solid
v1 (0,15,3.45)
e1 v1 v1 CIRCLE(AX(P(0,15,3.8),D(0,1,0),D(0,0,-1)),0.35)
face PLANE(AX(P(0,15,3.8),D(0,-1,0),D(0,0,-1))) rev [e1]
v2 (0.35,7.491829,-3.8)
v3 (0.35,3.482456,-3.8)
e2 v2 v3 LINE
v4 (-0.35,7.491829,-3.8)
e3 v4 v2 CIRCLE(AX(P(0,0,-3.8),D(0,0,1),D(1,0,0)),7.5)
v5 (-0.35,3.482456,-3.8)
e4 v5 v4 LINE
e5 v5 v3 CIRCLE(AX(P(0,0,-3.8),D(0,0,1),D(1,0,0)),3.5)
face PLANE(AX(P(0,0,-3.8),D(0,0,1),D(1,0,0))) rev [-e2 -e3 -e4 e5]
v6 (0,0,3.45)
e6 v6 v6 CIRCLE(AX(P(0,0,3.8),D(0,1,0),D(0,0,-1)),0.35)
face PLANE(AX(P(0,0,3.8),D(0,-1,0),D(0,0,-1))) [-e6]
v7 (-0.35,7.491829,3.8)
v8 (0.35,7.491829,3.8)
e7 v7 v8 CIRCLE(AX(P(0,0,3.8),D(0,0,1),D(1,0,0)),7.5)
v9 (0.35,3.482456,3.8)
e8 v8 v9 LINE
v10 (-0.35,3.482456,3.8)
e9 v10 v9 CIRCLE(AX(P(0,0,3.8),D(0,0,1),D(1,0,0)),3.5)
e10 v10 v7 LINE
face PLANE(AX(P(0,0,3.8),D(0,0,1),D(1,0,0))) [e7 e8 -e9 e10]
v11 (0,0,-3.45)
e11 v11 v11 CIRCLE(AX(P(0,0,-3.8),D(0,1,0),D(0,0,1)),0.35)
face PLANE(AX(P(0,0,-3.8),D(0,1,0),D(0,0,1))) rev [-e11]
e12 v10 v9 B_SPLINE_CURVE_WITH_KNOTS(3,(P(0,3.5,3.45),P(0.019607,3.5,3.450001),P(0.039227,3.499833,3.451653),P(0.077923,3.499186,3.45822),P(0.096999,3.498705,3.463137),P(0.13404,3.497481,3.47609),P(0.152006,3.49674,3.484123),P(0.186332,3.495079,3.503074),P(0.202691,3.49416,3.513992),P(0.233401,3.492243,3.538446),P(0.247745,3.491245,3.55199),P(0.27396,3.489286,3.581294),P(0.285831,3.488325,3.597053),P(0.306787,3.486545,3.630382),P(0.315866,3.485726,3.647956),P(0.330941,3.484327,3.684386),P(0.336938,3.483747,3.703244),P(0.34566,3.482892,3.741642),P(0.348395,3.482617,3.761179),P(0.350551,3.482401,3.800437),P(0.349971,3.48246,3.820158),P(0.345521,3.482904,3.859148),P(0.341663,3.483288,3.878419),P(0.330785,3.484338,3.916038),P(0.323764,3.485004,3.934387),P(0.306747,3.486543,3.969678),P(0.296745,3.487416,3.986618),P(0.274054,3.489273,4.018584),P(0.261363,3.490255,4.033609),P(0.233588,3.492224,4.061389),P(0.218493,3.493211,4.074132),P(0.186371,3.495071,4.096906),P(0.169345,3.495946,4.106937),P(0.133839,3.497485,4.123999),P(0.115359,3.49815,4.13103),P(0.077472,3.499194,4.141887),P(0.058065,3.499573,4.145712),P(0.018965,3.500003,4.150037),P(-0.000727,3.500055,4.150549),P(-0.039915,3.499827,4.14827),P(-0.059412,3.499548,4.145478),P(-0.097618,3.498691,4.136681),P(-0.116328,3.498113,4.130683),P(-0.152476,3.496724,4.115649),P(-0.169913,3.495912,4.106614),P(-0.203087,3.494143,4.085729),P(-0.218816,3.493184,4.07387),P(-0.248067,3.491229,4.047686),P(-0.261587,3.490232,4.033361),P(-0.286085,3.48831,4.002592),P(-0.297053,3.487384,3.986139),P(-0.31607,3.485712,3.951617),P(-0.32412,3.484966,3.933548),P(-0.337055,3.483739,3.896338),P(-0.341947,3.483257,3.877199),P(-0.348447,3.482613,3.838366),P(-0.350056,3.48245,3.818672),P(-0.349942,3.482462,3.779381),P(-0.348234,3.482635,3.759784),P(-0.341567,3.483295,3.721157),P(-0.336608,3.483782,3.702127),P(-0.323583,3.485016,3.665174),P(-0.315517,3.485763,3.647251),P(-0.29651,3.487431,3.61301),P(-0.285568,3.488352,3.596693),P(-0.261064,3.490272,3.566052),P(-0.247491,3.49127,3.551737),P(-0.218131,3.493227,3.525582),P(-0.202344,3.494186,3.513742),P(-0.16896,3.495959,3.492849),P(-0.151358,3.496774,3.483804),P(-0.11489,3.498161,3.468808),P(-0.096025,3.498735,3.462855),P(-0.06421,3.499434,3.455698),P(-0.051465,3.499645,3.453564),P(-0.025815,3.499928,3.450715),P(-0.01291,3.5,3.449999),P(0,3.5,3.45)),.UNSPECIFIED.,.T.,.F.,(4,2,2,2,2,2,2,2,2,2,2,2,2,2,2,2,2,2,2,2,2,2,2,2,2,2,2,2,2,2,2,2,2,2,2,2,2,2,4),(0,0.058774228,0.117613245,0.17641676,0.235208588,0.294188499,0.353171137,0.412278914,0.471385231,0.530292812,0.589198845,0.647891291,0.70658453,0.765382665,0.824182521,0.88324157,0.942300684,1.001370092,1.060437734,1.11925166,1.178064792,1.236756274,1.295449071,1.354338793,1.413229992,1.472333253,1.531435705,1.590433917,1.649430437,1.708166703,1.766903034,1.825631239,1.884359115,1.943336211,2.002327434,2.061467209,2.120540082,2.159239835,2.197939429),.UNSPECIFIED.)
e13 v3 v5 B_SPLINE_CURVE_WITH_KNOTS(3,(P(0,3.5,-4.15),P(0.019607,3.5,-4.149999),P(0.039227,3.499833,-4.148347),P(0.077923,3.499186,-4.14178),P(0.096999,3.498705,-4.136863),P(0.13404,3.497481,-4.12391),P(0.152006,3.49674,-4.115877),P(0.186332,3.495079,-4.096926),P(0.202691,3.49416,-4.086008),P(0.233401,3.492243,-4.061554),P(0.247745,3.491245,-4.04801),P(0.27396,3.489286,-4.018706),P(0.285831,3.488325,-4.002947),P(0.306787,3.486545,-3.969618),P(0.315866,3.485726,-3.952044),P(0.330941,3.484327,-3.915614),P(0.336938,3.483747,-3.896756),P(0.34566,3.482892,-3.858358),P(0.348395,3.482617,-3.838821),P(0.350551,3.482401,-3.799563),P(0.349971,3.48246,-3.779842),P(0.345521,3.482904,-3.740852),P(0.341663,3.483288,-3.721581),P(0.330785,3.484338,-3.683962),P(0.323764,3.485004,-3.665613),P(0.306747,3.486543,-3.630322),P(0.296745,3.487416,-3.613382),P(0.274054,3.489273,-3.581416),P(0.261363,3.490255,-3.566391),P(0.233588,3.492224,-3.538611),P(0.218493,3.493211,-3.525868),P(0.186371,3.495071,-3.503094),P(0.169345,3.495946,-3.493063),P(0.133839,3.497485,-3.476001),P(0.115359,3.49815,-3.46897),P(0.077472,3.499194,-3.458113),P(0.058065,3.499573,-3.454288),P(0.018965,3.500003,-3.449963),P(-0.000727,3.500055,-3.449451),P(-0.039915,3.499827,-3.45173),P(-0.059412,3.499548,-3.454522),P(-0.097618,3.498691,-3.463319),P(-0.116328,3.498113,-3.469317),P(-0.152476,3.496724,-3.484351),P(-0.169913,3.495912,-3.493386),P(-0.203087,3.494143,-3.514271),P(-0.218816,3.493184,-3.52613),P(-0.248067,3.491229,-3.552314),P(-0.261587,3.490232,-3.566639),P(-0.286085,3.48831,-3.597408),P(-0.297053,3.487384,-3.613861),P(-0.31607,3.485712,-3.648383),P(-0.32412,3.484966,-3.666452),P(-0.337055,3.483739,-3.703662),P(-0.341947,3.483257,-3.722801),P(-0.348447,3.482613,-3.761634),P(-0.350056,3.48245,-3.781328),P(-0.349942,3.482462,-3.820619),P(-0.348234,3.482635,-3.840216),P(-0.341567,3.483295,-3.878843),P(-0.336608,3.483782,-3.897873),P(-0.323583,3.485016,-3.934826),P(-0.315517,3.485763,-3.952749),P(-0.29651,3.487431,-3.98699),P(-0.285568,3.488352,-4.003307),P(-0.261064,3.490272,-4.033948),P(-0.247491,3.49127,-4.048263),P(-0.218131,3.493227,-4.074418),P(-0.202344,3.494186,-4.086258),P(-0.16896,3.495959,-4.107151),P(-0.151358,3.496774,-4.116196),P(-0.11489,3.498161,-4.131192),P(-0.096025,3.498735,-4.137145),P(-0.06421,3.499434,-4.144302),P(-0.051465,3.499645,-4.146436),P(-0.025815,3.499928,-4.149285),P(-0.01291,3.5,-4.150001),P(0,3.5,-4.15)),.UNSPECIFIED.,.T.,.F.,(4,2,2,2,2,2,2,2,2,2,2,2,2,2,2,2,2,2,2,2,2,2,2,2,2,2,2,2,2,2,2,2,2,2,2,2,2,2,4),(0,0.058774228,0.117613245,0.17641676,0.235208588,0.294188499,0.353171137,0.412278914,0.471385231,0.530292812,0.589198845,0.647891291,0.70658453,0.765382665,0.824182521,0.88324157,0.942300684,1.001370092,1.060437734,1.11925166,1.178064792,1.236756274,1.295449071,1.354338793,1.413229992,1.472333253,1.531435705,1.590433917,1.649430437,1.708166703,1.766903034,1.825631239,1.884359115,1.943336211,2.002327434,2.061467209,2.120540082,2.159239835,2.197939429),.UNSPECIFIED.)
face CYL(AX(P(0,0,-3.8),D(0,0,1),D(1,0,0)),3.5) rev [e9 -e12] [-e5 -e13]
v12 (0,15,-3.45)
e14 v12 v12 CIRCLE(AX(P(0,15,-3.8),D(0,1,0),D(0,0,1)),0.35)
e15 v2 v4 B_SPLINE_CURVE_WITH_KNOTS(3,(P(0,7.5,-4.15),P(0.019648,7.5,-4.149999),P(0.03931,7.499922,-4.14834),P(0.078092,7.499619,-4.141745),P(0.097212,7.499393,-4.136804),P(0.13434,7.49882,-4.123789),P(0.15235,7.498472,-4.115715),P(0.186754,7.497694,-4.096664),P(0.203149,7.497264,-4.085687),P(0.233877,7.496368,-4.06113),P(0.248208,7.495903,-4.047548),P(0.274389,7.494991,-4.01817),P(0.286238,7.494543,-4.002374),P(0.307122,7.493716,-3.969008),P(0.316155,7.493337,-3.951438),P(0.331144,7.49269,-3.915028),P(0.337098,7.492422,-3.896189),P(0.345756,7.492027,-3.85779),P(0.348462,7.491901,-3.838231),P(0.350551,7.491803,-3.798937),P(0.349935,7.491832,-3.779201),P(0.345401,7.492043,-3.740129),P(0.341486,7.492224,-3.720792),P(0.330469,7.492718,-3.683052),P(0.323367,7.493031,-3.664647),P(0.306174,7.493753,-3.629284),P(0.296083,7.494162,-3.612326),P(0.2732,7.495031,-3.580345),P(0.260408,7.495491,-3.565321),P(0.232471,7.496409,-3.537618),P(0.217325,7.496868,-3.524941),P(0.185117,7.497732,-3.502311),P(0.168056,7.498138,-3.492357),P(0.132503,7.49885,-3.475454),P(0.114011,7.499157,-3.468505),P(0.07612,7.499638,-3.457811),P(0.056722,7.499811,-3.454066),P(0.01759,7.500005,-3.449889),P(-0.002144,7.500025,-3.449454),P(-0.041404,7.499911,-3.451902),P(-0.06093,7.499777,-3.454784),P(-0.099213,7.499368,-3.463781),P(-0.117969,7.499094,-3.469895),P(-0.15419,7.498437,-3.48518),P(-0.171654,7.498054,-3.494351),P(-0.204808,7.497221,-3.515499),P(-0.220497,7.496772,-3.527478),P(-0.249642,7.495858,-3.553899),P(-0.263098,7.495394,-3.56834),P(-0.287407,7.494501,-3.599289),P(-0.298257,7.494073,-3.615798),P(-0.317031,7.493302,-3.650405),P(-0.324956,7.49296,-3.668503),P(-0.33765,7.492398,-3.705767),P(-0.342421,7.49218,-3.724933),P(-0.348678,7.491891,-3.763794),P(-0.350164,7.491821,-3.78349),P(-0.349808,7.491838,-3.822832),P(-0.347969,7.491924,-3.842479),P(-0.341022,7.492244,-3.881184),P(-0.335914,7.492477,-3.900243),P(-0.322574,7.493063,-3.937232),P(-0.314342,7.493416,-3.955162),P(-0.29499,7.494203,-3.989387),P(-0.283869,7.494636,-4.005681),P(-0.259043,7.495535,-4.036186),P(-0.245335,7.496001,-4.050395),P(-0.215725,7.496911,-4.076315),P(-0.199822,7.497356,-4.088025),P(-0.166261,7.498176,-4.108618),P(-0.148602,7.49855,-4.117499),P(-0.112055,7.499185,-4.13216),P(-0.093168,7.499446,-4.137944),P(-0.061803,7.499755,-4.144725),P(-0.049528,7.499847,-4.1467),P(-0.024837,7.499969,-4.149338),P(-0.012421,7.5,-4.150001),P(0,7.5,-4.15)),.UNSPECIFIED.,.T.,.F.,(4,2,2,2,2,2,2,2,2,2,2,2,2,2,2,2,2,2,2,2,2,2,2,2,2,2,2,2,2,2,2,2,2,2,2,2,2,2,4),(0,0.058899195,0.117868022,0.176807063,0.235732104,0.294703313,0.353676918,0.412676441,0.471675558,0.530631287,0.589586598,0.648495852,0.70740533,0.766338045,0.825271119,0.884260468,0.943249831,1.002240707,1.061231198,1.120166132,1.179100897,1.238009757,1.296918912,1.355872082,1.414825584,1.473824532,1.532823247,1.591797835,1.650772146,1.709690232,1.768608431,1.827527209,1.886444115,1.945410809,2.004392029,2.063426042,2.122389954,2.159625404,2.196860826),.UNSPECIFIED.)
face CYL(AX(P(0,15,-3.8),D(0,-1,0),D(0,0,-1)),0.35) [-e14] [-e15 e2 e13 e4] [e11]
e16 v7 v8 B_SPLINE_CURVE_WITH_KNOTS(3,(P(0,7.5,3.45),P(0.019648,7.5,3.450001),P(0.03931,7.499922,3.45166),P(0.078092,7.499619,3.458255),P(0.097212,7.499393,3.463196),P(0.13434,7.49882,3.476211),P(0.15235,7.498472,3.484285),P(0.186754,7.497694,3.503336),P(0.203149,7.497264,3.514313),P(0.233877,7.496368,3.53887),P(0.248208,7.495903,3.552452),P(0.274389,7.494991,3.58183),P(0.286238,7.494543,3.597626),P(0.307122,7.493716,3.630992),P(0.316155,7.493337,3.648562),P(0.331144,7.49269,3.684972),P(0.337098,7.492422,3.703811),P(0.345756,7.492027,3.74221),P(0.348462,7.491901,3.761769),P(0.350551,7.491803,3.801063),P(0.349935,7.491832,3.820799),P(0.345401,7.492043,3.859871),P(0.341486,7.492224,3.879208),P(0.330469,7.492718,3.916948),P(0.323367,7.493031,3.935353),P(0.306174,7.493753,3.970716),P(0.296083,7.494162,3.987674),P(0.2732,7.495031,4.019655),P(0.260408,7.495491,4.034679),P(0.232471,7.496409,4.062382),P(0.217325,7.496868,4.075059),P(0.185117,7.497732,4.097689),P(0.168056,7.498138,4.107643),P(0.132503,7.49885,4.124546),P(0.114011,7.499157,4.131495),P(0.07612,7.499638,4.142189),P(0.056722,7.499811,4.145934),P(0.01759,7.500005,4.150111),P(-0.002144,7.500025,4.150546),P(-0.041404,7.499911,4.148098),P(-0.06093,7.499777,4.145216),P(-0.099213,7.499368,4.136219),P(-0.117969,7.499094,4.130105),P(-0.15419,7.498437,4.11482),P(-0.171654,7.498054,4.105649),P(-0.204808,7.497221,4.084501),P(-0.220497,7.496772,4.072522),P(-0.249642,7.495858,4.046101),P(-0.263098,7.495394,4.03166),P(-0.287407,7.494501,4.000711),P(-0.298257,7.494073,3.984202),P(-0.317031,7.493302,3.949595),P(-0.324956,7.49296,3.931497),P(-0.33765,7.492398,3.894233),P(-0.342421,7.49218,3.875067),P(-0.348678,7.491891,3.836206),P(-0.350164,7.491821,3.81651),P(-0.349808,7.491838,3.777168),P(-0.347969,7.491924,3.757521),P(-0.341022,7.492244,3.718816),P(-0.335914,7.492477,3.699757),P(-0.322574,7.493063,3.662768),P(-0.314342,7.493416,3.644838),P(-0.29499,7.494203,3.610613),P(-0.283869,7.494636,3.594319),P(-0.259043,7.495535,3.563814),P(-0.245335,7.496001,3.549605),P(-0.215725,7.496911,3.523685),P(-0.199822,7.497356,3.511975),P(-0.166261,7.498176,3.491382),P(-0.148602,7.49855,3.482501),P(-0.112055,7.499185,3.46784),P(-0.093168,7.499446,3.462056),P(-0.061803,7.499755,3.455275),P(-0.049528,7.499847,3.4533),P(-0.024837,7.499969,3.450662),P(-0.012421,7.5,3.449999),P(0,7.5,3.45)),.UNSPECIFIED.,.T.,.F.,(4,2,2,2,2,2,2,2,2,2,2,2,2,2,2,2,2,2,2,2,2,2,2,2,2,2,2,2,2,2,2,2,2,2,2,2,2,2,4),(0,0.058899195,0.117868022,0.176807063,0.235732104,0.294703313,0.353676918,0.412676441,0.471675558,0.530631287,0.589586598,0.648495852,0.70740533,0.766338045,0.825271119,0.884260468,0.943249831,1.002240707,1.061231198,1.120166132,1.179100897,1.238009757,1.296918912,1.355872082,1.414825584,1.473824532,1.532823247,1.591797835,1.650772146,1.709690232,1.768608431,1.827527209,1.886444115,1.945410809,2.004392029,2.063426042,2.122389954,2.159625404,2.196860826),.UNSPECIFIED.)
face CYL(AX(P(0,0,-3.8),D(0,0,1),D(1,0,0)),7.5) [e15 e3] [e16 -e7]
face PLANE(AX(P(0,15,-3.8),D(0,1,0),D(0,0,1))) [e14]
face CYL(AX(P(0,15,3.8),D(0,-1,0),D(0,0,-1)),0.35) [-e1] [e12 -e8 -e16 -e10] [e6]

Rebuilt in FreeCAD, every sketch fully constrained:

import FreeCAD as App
import Part
import Sketcher
from FreeCAD import Vector
Q = App.Units.Quantity

doc = App.newDocument("Part")
body = doc.addObject("PartDesign::Body", "Body")

sketch1 = body.newObject("Sketcher::SketchObject", "Sketch")
sketch1.AttachmentSupport = (doc.getObject("XY_Plane"), [""])
sketch1.MapMode = "FlatFace"
sketch1.addGeometry(Part.Circle(Vector(0, 0, 0), Vector(0, 0, 1), 7.5), False)
sketch1.addGeometry(Part.Circle(Vector(0, 0, 0), Vector(0, 0, 1), 3.5), False)
sketch1.addConstraint(Sketcher.Constraint("Coincident", 0, 3, -1, 1))
sketch1.addConstraint(Sketcher.Constraint("Coincident", 1, 3, -1, 1))
sketch1.addConstraint(Sketcher.Constraint("Diameter", 0, Q("15 mm")))
sketch1.addConstraint(Sketcher.Constraint("Diameter", 1, Q("7 mm")))
pad1 = body.newObject("PartDesign::Pad", "Pad")
pad1.Profile = sketch1
pad1.Type = "TwoLengths"
pad1.Length = 3.8
pad1.Length2 = 3.8

sketch2 = body.newObject("Sketcher::SketchObject", "Sketch001")
sketch2.AttachmentSupport = (doc.getObject("XZ_Plane"), [""])
sketch2.MapMode = "FlatFace"
sketch2.addGeometry(Part.Circle(Vector(0, -3.8, 0), Vector(0, 0, 1), 0.35), False)
sketch2.addGeometry(Part.Circle(Vector(0, 3.8, 0), Vector(0, 0, 1), 0.35), False)
sketch2.addConstraint(Sketcher.Constraint("Equal", 0, 1))
sketch2.addConstraint(Sketcher.Constraint("Symmetric", 0, 3, 1, 3, -1, 1))
sketch2.addConstraint(Sketcher.Constraint("PointOnObject", 0, 3, -2))
sketch2.addConstraint(Sketcher.Constraint("Diameter", 0, Q("0.7 mm")))
sketch2.addConstraint(Sketcher.Constraint("DistanceY", 0, 3, -1, 1, Q("3.8 mm")))
pad2 = body.newObject("PartDesign::Pad", "Pad001")
pad2.Profile = sketch2
pad2.Length = 15
pad2.Reversed = True

doc.recompute()
